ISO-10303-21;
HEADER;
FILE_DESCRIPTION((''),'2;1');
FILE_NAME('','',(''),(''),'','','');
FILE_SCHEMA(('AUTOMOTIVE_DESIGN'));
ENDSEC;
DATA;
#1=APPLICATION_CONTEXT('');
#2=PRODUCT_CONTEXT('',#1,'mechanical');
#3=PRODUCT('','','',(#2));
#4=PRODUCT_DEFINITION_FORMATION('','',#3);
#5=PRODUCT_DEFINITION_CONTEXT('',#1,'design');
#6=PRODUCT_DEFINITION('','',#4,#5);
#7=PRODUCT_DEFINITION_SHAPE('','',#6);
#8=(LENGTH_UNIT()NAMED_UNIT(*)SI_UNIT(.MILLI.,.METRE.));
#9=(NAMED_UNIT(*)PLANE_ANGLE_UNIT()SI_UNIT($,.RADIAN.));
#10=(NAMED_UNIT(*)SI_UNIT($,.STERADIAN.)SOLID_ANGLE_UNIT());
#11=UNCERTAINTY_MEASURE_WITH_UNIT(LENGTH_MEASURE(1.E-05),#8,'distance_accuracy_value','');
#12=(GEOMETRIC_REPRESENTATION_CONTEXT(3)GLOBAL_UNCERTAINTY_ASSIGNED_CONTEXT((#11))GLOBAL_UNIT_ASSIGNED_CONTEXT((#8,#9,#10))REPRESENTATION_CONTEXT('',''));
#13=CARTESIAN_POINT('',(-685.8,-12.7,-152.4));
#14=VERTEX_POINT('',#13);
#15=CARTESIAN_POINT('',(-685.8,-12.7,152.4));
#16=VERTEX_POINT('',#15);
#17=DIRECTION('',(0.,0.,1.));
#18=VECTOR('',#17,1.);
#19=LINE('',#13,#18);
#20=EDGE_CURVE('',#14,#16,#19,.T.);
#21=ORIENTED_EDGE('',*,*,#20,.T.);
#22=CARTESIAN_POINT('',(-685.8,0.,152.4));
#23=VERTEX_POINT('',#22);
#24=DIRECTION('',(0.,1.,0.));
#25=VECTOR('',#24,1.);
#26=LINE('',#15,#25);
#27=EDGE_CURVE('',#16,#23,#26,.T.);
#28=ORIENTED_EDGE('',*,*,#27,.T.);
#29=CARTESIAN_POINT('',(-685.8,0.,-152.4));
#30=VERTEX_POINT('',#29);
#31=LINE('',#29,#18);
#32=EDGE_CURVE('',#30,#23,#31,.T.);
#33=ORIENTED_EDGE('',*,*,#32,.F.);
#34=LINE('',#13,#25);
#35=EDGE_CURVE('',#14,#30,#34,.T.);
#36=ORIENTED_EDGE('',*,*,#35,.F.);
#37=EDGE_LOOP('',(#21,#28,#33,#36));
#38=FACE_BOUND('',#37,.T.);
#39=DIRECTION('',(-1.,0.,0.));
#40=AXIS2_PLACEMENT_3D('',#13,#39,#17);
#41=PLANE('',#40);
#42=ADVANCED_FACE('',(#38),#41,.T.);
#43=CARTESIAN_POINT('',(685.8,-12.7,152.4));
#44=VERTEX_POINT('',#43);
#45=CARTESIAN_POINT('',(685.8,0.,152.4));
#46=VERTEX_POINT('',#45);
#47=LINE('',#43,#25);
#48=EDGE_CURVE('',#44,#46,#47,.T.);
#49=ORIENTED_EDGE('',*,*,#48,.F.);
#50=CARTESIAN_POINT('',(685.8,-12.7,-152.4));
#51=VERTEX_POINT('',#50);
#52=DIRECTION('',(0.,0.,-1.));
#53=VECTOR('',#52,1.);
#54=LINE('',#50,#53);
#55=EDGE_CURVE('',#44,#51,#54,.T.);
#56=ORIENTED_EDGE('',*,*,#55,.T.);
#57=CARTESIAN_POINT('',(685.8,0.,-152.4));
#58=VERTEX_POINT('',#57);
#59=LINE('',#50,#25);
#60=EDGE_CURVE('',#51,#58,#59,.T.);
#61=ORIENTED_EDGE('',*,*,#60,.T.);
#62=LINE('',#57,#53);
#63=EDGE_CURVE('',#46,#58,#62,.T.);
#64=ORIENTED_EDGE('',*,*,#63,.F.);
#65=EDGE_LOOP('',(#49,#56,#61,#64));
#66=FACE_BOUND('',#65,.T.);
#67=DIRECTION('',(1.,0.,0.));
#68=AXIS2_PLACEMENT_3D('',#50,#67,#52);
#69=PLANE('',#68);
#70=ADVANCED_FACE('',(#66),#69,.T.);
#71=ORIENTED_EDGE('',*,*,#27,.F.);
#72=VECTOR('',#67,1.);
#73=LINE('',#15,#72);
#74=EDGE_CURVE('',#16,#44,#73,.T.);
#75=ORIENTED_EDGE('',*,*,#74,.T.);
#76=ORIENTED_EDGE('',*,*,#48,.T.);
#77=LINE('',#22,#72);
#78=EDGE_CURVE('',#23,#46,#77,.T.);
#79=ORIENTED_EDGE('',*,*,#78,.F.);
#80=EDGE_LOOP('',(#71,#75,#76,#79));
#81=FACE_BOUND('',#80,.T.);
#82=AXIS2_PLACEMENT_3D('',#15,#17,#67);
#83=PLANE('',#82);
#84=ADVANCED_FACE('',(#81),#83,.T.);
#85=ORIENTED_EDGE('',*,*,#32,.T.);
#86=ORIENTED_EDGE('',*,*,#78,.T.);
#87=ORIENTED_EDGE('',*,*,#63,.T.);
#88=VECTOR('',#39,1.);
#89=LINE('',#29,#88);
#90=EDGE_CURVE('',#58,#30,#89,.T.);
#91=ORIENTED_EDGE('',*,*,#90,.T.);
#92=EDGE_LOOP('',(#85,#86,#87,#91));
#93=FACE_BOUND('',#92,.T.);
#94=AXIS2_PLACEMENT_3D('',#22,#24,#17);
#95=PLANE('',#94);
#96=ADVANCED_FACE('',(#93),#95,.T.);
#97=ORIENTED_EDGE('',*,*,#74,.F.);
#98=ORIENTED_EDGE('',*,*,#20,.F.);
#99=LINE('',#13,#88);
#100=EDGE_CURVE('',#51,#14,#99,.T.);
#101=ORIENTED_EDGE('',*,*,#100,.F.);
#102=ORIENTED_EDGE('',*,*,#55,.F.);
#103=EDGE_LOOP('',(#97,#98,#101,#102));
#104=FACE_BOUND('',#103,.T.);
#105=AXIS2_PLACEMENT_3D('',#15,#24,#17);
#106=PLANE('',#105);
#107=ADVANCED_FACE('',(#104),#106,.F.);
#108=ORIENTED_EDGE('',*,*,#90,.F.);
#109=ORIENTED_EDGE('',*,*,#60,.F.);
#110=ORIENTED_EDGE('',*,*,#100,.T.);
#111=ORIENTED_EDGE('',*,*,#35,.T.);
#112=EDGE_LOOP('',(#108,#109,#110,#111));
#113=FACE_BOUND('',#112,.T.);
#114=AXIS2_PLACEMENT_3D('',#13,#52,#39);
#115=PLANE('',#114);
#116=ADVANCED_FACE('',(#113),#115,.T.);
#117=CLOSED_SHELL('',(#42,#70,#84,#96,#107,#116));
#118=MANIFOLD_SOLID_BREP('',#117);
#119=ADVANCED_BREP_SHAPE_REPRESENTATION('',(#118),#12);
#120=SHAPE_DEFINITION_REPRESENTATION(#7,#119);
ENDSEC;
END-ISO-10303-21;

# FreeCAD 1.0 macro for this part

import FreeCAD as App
import Part
import Sketcher
from FreeCAD import Vector
Q = App.Units.Quantity


def add_polygon(sketch, points):
    """Adds a closed chain of lines whose ends are joined by coincident constraints."""
    first, n = sketch.GeometryCount, len(points)
    for a, b in zip(points, points[1:] + points[:1]):
        sketch.addGeometry(Part.LineSegment(App.Vector(*a, 0), App.Vector(*b, 0)), False)
    for i in range(n):
        sketch.addConstraint(Sketcher.Constraint("Coincident", first + i, 2, first + (i + 1) % n, 1))

doc = App.newDocument("Part")
params = doc.addObject("Spreadsheet::Sheet", "Params")
for row, (alias, value) in enumerate([
    ("sketch1_width", "54 in"),
    ("sketch1_height", "12 in"),
    ("pad1_length", "0.5 in"),
], start=1):
    params.set(f"A{row}", alias)
    params.set(f"B{row}", "=" + value)
    params.setAlias(f"B{row}", alias)

body = doc.addObject("PartDesign::Body", "Body")

sketch1 = body.newObject("Sketcher::SketchObject", "Sketch")
sketch1.AttachmentSupport = (doc.getObject("XZ_Plane"), [""])
sketch1.MapMode = "FlatFace"
add_polygon(sketch1, [(-686, -152), (-686, 152), (686, 152), (686, -152)])
sketch1.addConstraint(Sketcher.Constraint("Vertical", 0))
sketch1.addConstraint(Sketcher.Constraint("Horizontal", 1))
sketch1.addConstraint(Sketcher.Constraint("Vertical", 2))
sketch1.addConstraint(Sketcher.Constraint("Horizontal", 3))
sketch1.addConstraint(Sketcher.Constraint("Symmetric", 0, 2, 2, 2, -1, 1))
sketch1.addConstraint(Sketcher.Constraint("DistanceX", 1, 1, 1, 2, Q("54 in")))
sketch1.addConstraint(Sketcher.Constraint("DistanceY", 0, 1, 0, 2, Q("12 in")))
sketch1.setExpression("Constraints[9]", "Params.sketch1_width")
sketch1.setExpression("Constraints[10]", "Params.sketch1_height")
pad1 = body.newObject("PartDesign::Pad", "Pad")
pad1.Profile = sketch1
pad1.setExpression("Length", "Params.pad1_length")

doc.recompute()
